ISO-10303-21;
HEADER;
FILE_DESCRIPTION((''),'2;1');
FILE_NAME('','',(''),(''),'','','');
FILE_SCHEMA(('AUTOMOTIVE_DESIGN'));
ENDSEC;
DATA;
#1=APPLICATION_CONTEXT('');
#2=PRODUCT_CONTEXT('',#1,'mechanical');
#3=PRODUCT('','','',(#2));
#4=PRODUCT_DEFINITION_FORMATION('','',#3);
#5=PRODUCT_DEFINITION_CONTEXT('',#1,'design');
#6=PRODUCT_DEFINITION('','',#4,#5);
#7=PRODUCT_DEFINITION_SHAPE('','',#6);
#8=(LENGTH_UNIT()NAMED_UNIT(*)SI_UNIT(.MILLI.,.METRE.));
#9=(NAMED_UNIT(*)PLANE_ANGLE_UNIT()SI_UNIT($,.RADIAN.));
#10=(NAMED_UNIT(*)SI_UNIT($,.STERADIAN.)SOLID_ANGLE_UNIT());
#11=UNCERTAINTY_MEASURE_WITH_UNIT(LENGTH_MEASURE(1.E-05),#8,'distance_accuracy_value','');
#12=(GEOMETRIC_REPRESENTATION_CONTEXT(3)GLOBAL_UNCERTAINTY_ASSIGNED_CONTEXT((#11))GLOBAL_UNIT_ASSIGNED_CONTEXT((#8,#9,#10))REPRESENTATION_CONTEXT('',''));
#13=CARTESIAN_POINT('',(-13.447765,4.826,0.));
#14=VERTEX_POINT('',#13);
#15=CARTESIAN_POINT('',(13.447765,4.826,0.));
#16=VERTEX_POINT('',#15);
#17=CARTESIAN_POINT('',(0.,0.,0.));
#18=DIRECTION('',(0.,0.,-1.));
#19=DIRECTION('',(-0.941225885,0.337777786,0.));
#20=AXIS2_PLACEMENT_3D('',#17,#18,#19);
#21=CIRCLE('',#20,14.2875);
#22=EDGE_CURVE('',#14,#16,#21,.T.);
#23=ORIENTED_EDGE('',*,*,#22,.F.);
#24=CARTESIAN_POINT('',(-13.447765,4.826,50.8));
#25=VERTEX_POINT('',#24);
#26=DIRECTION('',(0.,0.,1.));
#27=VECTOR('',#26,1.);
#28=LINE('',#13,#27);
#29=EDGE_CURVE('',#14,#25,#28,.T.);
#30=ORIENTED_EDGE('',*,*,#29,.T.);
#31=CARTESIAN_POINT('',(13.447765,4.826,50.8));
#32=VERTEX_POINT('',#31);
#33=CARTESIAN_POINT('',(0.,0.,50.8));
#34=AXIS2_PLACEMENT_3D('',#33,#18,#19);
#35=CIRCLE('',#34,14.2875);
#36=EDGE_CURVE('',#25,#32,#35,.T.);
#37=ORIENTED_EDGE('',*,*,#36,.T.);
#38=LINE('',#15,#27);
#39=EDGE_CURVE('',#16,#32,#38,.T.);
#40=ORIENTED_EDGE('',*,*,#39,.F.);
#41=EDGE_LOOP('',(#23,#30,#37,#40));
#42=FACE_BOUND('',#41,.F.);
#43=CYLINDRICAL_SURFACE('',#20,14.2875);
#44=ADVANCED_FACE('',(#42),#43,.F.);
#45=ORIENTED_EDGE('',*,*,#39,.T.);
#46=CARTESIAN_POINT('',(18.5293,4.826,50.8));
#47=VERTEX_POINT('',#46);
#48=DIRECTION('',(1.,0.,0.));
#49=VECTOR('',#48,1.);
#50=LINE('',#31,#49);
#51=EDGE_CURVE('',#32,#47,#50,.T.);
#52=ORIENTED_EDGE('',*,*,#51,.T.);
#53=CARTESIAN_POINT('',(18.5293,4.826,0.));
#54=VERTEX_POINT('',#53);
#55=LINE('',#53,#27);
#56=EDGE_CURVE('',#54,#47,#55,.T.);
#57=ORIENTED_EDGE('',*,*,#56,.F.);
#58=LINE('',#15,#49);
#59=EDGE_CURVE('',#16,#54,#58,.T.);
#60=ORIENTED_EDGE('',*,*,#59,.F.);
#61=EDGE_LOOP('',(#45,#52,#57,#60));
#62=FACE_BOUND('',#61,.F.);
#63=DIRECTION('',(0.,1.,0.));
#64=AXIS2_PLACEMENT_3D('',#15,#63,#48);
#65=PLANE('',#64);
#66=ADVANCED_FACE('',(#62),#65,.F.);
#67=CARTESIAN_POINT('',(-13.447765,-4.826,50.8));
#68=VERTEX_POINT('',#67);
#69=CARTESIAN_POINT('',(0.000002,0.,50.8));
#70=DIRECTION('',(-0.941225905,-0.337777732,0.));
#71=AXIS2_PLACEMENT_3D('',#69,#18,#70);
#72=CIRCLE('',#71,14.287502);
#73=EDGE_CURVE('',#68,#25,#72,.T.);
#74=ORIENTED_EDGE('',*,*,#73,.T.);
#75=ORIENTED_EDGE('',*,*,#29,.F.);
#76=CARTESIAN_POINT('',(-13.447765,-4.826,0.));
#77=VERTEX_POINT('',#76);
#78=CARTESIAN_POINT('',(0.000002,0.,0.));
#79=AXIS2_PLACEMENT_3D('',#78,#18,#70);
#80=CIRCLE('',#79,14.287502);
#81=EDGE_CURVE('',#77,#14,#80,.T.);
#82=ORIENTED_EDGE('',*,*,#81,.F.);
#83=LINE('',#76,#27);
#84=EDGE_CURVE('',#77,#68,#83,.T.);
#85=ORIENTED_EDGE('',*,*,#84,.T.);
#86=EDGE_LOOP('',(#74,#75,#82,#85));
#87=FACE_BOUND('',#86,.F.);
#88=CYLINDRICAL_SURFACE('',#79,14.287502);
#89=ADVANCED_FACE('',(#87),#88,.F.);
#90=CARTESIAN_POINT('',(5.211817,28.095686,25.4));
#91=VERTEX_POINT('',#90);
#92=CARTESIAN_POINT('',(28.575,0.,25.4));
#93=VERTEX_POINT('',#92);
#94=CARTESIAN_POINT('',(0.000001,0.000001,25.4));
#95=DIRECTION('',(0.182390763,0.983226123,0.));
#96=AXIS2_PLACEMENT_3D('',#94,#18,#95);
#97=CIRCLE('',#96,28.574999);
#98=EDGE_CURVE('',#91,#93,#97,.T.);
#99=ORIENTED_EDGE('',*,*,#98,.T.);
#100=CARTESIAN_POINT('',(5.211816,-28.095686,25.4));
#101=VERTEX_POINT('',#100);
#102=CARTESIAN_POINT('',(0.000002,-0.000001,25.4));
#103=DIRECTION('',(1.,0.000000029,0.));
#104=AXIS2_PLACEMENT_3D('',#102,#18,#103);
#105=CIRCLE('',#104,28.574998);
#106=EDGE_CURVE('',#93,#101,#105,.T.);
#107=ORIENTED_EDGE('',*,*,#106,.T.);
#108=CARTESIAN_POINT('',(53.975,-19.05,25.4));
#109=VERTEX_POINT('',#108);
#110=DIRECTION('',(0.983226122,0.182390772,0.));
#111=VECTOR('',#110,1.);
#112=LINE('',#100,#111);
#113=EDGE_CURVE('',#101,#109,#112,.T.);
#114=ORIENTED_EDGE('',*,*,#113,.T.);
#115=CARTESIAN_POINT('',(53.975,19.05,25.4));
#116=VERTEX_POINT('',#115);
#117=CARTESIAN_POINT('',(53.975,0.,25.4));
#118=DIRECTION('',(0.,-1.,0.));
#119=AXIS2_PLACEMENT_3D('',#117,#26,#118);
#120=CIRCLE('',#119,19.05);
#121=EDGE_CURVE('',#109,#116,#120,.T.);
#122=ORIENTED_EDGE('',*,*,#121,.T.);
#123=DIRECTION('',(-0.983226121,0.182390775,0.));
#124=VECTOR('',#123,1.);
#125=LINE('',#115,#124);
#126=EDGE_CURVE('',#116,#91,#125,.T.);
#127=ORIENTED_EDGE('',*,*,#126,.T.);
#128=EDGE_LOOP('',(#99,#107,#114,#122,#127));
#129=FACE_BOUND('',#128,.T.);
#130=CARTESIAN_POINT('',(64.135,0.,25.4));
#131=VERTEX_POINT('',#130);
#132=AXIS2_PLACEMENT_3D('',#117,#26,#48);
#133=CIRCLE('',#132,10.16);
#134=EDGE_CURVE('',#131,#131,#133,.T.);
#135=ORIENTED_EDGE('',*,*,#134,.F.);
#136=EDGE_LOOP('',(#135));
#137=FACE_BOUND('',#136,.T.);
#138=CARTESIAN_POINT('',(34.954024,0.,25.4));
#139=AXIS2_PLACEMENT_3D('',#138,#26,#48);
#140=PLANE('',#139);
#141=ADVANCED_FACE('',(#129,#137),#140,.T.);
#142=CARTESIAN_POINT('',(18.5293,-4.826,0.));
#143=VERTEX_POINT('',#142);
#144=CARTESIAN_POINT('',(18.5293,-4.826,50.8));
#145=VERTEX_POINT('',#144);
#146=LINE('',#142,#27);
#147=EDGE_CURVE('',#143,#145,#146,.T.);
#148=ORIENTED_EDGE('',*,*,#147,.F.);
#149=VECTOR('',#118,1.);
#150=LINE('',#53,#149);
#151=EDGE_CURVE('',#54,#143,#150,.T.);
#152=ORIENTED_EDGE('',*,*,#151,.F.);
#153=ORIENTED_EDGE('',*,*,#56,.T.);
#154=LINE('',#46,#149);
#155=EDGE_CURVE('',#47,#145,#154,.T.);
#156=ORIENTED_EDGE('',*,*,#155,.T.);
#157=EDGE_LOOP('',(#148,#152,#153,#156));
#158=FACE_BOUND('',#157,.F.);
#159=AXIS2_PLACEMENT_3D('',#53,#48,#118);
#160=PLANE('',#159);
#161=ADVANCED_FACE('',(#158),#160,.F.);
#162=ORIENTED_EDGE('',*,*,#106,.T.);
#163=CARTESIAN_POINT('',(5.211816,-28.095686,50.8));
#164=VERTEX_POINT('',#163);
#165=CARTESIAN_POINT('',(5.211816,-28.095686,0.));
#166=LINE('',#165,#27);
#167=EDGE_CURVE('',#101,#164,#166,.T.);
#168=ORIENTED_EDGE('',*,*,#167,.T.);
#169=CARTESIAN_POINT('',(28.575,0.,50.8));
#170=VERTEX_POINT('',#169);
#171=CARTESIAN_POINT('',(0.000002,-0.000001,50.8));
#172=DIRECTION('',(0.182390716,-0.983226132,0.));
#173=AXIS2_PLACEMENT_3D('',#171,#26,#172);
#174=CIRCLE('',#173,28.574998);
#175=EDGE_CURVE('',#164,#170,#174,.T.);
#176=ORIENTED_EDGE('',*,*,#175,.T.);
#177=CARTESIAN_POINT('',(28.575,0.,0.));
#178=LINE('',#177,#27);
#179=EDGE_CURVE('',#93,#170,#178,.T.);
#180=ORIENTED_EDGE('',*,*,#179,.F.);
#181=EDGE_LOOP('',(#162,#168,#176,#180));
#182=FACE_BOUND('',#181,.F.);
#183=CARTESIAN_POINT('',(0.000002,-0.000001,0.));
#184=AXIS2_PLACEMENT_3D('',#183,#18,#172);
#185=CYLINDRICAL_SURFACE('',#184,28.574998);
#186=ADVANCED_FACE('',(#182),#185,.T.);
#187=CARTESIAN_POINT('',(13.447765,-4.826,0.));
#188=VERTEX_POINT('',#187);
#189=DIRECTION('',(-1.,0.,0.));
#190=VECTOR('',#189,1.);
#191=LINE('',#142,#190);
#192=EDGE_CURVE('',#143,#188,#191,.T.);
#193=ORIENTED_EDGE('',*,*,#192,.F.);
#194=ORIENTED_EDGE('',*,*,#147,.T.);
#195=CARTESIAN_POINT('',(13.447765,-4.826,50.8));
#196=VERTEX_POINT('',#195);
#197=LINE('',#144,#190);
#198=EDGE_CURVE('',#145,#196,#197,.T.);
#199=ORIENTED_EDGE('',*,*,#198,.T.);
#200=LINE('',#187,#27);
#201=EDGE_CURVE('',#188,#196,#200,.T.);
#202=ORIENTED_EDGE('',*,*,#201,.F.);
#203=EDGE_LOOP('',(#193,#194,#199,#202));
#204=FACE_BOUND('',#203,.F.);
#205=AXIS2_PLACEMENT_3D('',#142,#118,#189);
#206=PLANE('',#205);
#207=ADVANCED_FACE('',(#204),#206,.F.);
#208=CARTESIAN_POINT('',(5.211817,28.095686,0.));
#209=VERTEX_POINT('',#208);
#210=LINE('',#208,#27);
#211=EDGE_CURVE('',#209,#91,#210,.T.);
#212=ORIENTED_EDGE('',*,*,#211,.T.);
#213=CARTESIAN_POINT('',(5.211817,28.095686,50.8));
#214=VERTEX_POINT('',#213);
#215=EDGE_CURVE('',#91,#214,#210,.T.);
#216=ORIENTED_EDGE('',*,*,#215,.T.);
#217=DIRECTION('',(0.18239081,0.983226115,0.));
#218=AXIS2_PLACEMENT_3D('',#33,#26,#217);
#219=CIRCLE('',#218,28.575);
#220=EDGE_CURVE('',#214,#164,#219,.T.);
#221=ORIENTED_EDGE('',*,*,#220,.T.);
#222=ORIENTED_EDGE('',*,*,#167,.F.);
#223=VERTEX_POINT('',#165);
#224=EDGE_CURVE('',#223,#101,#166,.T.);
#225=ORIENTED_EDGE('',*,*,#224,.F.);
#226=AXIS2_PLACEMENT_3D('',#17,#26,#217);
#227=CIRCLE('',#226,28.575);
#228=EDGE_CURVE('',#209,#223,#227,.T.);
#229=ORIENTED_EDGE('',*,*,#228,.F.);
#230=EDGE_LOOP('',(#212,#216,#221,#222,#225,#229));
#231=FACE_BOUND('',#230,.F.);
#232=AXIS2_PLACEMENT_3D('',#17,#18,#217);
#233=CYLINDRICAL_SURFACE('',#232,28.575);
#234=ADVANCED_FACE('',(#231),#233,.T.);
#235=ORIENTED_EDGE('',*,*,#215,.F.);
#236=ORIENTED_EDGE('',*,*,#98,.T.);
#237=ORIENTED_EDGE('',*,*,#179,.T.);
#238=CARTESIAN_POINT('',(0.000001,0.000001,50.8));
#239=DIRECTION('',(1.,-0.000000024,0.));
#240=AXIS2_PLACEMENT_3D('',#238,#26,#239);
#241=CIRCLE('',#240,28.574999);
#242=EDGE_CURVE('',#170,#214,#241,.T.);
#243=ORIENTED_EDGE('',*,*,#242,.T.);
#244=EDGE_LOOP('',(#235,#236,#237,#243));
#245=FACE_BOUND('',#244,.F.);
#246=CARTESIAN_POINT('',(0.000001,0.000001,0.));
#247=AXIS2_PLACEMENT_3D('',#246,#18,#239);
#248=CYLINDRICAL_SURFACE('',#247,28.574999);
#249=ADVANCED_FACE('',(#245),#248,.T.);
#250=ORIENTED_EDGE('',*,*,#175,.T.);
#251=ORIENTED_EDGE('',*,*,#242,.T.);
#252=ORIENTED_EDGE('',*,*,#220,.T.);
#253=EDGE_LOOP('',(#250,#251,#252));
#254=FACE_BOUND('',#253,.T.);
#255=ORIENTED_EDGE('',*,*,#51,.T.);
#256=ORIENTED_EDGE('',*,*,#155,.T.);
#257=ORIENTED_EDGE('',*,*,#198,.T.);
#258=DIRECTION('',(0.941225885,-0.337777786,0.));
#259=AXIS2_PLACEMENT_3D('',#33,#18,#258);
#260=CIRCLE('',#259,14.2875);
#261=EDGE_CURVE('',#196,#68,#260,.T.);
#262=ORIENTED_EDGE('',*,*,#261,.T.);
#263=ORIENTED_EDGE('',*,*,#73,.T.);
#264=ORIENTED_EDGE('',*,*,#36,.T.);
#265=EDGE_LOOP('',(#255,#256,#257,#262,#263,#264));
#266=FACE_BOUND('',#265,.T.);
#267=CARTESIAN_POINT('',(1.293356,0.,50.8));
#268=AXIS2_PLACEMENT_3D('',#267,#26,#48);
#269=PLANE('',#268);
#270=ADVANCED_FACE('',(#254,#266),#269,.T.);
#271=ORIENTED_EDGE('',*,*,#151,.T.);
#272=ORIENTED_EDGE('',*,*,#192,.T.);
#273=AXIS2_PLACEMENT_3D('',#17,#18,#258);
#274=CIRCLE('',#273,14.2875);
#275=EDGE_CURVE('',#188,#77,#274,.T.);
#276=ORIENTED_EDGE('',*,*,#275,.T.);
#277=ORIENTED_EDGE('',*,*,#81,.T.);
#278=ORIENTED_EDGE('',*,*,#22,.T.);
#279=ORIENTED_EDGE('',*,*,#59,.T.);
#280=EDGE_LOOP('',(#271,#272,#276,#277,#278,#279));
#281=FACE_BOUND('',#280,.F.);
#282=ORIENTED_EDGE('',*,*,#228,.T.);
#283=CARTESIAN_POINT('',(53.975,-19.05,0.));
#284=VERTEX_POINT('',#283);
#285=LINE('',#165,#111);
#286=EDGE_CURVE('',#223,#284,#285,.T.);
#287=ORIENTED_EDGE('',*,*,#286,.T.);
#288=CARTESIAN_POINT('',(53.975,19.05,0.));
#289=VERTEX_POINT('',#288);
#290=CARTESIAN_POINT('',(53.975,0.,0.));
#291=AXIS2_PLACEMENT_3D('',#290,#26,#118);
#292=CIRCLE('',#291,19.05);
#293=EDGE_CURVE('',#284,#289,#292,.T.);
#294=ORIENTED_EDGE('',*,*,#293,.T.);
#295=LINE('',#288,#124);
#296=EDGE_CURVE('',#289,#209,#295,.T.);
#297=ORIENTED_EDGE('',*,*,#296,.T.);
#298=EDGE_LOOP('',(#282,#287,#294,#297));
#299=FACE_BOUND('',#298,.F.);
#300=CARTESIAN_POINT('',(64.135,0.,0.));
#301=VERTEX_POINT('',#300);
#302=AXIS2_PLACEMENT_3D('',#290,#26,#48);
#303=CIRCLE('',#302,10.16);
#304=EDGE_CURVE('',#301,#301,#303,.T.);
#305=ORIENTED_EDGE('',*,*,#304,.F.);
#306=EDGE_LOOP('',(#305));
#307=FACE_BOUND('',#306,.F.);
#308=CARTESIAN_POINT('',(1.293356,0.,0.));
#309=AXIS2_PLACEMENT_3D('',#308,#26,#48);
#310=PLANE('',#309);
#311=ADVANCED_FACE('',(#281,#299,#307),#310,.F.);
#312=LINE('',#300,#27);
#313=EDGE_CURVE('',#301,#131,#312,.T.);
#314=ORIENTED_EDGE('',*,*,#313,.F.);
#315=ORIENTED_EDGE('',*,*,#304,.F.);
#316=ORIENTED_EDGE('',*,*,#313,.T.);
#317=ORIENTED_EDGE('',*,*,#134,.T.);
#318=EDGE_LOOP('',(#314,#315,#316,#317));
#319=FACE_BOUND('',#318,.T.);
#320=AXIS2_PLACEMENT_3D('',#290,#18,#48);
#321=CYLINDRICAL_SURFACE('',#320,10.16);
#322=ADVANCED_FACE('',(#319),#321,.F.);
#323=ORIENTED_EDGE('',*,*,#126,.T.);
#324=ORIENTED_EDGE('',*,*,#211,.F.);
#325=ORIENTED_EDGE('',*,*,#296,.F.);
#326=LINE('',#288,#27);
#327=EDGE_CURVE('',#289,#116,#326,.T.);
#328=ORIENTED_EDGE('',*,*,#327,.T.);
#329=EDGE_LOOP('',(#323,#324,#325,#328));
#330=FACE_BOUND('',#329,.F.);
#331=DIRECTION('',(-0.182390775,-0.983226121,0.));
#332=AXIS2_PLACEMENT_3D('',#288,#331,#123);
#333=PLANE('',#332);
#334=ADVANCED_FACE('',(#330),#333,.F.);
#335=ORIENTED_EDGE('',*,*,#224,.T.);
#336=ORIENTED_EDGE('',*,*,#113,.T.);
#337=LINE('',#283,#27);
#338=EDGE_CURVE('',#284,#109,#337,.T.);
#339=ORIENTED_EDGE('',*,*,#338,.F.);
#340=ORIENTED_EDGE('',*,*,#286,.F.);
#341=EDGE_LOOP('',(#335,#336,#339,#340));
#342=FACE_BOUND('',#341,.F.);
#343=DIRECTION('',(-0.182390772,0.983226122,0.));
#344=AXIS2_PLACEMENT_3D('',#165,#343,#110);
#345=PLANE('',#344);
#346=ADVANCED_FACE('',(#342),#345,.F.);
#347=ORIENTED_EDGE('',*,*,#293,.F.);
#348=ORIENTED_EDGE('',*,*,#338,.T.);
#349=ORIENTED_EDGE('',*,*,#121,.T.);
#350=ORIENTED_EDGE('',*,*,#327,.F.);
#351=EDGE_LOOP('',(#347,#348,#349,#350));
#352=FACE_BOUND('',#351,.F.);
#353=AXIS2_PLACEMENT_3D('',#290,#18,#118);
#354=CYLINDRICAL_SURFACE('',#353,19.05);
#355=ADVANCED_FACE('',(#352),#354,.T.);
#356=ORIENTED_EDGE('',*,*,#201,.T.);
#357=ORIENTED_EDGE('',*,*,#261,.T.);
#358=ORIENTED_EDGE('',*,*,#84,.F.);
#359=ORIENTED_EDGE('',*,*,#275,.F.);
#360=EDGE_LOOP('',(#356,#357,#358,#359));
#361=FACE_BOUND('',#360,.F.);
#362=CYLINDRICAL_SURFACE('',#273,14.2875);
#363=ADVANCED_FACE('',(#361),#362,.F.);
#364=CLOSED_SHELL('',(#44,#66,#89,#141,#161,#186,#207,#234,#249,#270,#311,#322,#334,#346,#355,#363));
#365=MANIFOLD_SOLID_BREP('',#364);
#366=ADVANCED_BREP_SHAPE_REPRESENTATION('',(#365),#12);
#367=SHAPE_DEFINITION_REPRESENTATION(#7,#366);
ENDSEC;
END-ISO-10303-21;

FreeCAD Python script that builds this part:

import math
import FreeCAD as App
import Part
import Sketcher

V = App.Vector
Q = App.Units.Quantity

doc = App.newDocument("Part")
body = doc.addObject("PartDesign::Body", "Body")

# Sketch on XY plane
sketch1 = body.newObject("Sketcher::SketchObject", "Sketch")
sketch1.AttachmentSupport = (doc.getObject("XY_Plane"), [""])
sketch1.MapMode = "FlatFace"
sketch1.addGeometry([
    Part.ArcOfCircle(Part.Circle(V(0.000001, 0.000001, 0), V(0, 0, 1), 28.574999), math.radians(-0.000001), math.radians(79.490954)),  # 0
    Part.ArcOfCircle(Part.Circle(V(0.000002, -0.000001, 0), V(0, 0, 1), 28.574998), math.radians(-79.490957), math.radians(0.000002)),  # 1
    Part.LineSegment(V(5.211816, -28.095686, 0), V(53.975, -19.05, 0)),  # 2
    Part.ArcOfCircle(Part.Circle(V(53.975, 0, 0), V(0, 0, 1), 19.05), math.radians(-90), math.radians(90)),  # 3
    Part.LineSegment(V(53.975, 19.05, 0), V(5.211817, 28.095686, 0)),  # 4
    Part.Circle(V(53.975, 0, 0), V(0, 0, 1), 10.16),  # 5
], False)
sketch1.addConstraint([
    Sketcher.Constraint("Tangent", 0, 1, 1, 2),
    Sketcher.Constraint("Tangent", 1, 1, 2, 1),
    Sketcher.Constraint("Coincident", 2, 2, 3, 1),
    Sketcher.Constraint("Coincident", 3, 2, 4, 1),
    Sketcher.Constraint("Tangent", 4, 2, 0, 2),
    Sketcher.Constraint("Coincident", 0, 3, -1, 1),
    Sketcher.Constraint("Coincident", 5, 3, 3, 3),
    Sketcher.Constraint("Equal", 0, 1),
    Sketcher.Constraint("Symmetric", 2, 2, 3, 2, -1),
    Sketcher.Constraint("PointOnObject", 0, 1, -1),
    Sketcher.Constraint("Vertical", 5, 3, 2, 2),
    Sketcher.Constraint("Diameter", 5, Q("0.8 in")),
    Sketcher.Constraint("Radius", 3, Q("0.75 in")),
    Sketcher.Constraint("Radius", 0, Q("1.125 in")),
    Sketcher.Constraint("DistanceX", 0, 1, 3, 3, Q("1 in")),
])
pad1 = body.newObject("PartDesign::Pad", "Pad")
pad1.Profile = sketch1
pad1.Length = Q("1 in")

# Sketch on XY plane
sketch2 = body.newObject("Sketcher::SketchObject", "Sketch001")
sketch2.AttachmentSupport = (doc.getObject("XY_Plane"), [""])
sketch2.MapMode = "FlatFace"
sketch2.addGeometry([
    Part.ArcOfCircle(Part.Circle(V(0.000002, -0.000001, 0), V(0, 0, 1), 28.574998), math.radians(-79.490957), math.radians(0.000002)),  # 0
    Part.ArcOfCircle(Part.Circle(V(0.000001, 0.000001, 0), V(0, 0, 1), 28.574999), math.radians(-0.000001), math.radians(79.490954)),  # 1
    Part.ArcOfCircle(Part.Circle(V(0, 0, 0), V(0, 0, 1), 28.575), math.radians(79.490951), math.radians(280.509047)),  # 2
    Part.ArcOfCircle(Part.Circle(V(0, 0, 0), V(0, 0, 1), 14.2875), math.radians(-160.258458), math.radians(-19.741542)),  # 3
    Part.ArcOfCircle(Part.Circle(V(0.000002, 0, 0), V(0, 0, 1), 14.287502), math.radians(160.258461), math.radians(199.741539)),  # 4
    Part.ArcOfCircle(Part.Circle(V(0, 0, 0), V(0, 0, 1), 14.2875), math.radians(19.741542), math.radians(160.258458)),  # 5
    Part.LineSegment(V(13.447765, 4.826, 0), V(18.5293, 4.826, 0)),  # 6
    Part.LineSegment(V(18.5293, 4.826, 0), V(18.5293, -4.826, 0)),  # 7
    Part.LineSegment(V(18.5293, -4.826, 0), V(13.447765, -4.826, 0)),  # 8
], False)
sketch2.addConstraint([
    Sketcher.Constraint("Tangent", 0, 2, 1, 1),
    Sketcher.Constraint("Tangent", 1, 2, 2, 1),
    Sketcher.Constraint("Tangent", 2, 2, 0, 1),
    Sketcher.Constraint("Tangent", 3, 1, 4, 2),
    Sketcher.Constraint("Tangent", 4, 1, 5, 2),
    Sketcher.Constraint("Coincident", 5, 1, 6, 1),
    Sketcher.Constraint("Coincident", 6, 2, 7, 1),
    Sketcher.Constraint("Coincident", 7, 2, 8, 1),
    Sketcher.Constraint("Coincident", 8, 2, 3, 2),
    Sketcher.Constraint("Horizontal", 6),
    Sketcher.Constraint("Vertical", 7),
    Sketcher.Constraint("Horizontal", 8),
    Sketcher.Constraint("Coincident", 0, 3, -1, 1),
    Sketcher.Constraint("Coincident", 3, 3, -1, 1),
    Sketcher.Constraint("Coincident", 5, 3, -1, 1),
    Sketcher.Constraint("PointOnObject", 0, 2, -1),
    Sketcher.Constraint("Horizontal", 4, 1, 5, 1),
    Sketcher.Constraint("Horizontal", 3, 1, 7, 2),
    Sketcher.Constraint("Vertical", 1, 2, 2, 2),
    Sketcher.Constraint("Vertical", 3, 1, 4, 1),
    Sketcher.Constraint("Radius", 0, Q("1.1249999 in")),
    Sketcher.Constraint("Radius", 3, Q("0.5625 in")),
    Sketcher.Constraint("DistanceY", 7, 2, 7, 1, Q("0.38 in")),
    Sketcher.Constraint("DistanceX", -1, 1, 6, 2, Q("0.7295 in")),
    Sketcher.Constraint("DistanceX", -1, 1, 1, 2, 5.211817),
])
pad2 = body.newObject("PartDesign::Pad", "Pad001")
pad2.Profile = sketch2
pad2.Length = Q("2 in")

doc.recompute()
